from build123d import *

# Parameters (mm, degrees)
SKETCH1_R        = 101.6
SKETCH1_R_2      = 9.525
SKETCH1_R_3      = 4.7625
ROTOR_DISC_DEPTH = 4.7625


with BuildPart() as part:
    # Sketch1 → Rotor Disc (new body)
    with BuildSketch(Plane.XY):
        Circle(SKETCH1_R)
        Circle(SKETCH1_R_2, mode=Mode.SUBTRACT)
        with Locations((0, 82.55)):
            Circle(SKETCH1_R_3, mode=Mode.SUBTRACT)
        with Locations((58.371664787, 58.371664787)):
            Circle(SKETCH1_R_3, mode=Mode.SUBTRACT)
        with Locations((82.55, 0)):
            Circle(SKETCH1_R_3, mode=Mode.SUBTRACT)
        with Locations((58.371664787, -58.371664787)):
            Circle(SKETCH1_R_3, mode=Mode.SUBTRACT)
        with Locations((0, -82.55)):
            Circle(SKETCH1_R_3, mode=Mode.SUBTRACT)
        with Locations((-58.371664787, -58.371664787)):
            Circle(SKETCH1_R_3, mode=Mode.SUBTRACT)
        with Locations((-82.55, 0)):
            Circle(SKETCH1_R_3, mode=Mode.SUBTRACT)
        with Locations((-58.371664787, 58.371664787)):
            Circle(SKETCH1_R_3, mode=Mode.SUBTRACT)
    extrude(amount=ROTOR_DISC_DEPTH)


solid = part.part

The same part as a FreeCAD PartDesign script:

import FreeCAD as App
import Part
import Sketcher
Q = App.Units.Quantity

doc = App.newDocument("Part")
body = doc.addObject("PartDesign::Body", "Body")

# Sketch on XY plane
sketch1 = body.newObject("Sketcher::SketchObject", "Sketch")
sketch1.AttachmentSupport = (doc.getObject("XY_Plane"), [""])
sketch1.MapMode = "FlatFace"
sketch1.addGeometry(Part.Circle(App.Vector(0, 0, 0), App.Vector(0, 0, 1), 101.6), False)
sketch1.addGeometry(Part.Circle(App.Vector(-58.371665, -58.371665, 0), App.Vector(0, 0, 1), 4.7625), False)
sketch1.addGeometry(Part.Circle(App.Vector(0, -82.55, 0), App.Vector(0, 0, 1), 4.7625), False)
sketch1.addGeometry(Part.Circle(App.Vector(58.371665, -58.371665, 0), App.Vector(0, 0, 1), 4.7625), False)
sketch1.addGeometry(Part.Circle(App.Vector(-82.55, 0, 0), App.Vector(0, 0, 1), 4.7625), False)
sketch1.addGeometry(Part.Circle(App.Vector(-58.371665, 58.371665, 0), App.Vector(0, 0, 1), 4.7625), False)
sketch1.addGeometry(Part.Circle(App.Vector(0, 0, 0), App.Vector(0, 0, 1), 9.525), False)
sketch1.addGeometry(Part.Circle(App.Vector(82.55, 0, 0), App.Vector(0, 0, 1), 4.7625), False)
sketch1.addGeometry(Part.Circle(App.Vector(0, 82.55, 0), App.Vector(0, 0, 1), 4.7625), False)
sketch1.addGeometry(Part.Circle(App.Vector(58.371665, 58.371665, 0), App.Vector(0, 0, 1), 4.7625), False)
sketch1.addConstraint(Sketcher.Constraint("Coincident", 0, 3, -1, 1))
sketch1.addConstraint(Sketcher.Constraint("Coincident", 6, 3, -1, 1))
sketch1.addConstraint(Sketcher.Constraint("Equal", 1, 2))
sketch1.addConstraint(Sketcher.Constraint("Equal", 2, 3))
sketch1.addConstraint(Sketcher.Constraint("Equal", 3, 4))
sketch1.addConstraint(Sketcher.Constraint("Equal", 4, 5))
sketch1.addConstraint(Sketcher.Constraint("Equal", 5, 7))
sketch1.addConstraint(Sketcher.Constraint("Equal", 7, 8))
sketch1.addConstraint(Sketcher.Constraint("Equal", 8, 9))
sketch1.addConstraint(Sketcher.Constraint("Symmetric", 3, 3, 5, 3, -1, 1))
sketch1.addConstraint(Sketcher.Constraint("Symmetric", 4, 3, 7, 3, -1, 1))
sketch1.addConstraint(Sketcher.Constraint("Symmetric", 2, 3, 8, 3, -1, 1))
sketch1.addConstraint(Sketcher.Constraint("Symmetric", 1, 3, 9, 3, -1, 1))
sketch1.addConstraint(Sketcher.Constraint("Symmetric", 1, 3, 3, 3, -2))
sketch1.addConstraint(Sketcher.Constraint("PointOnObject", 2, 3, -2))
sketch1.addConstraint(Sketcher.Constraint("PointOnObject", 4, 3, -1))
sketch1.addConstraint(Sketcher.Constraint("Diameter", 0, Q("8 in")))
sketch1.addConstraint(Sketcher.Constraint("Diameter", 6, Q("0.75 in")))
sketch1.addConstraint(Sketcher.Constraint("Diameter", 1, Q("0.375 in")))
sketch1.addConstraint(Sketcher.Constraint("DistanceY", 2, 3, -1, 1, Q("3.25 in")))
sketch1.addConstraint(Sketcher.Constraint("DistanceX", 4, 3, -1, 1, Q("3.25 in")))
sketch1.addConstraint(Sketcher.Constraint("DistanceX", 1, 3, 3, 3, Q("116.74333 mm")))
sketch1.addConstraint(Sketcher.Constraint("DistanceY", 1, 3, 5, 3, Q("116.74333 mm")))
pad1 = body.newObject("PartDesign::Pad", "Pad")
pad1.Profile = sketch1
pad1.Length = Q("0.1875 in")

doc.recompute()
